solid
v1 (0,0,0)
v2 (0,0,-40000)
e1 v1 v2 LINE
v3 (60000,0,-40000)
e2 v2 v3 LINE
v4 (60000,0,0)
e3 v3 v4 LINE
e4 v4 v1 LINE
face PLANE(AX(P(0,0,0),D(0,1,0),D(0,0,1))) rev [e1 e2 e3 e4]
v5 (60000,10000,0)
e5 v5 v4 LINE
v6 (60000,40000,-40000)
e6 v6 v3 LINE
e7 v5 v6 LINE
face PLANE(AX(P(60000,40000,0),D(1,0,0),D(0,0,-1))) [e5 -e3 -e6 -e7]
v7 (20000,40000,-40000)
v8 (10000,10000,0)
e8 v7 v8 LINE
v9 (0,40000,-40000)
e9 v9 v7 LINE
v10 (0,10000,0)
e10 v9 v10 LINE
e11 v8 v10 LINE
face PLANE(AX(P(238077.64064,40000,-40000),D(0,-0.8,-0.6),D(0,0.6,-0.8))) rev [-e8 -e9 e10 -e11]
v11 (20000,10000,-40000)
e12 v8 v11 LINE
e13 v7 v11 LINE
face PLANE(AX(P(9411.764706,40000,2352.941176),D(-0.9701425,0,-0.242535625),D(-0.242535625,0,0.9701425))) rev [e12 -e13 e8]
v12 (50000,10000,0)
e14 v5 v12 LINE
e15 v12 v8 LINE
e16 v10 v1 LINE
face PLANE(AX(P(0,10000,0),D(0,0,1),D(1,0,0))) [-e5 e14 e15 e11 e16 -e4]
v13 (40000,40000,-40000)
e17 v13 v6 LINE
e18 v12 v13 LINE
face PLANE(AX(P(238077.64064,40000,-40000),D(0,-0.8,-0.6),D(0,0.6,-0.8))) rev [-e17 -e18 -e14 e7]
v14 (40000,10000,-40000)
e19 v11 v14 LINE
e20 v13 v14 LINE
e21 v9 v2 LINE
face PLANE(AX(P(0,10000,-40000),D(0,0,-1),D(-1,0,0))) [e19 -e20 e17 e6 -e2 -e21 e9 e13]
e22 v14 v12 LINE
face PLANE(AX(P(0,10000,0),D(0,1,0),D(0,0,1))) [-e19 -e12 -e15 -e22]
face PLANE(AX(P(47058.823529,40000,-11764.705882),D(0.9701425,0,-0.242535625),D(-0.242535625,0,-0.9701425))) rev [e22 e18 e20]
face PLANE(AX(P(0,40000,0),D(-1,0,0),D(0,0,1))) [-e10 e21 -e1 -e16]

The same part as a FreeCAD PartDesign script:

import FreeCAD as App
import Part
import Sketcher
Q = App.Units.Quantity

doc = App.newDocument("Part")
params = doc.addObject("Spreadsheet::Sheet", "Params")
for row, (alias, value) in enumerate([
    ("sketch1_width", "40000 mm"),
    ("sketch1_width2", "20000 mm"),
    ("pad1_length", "10000 mm"),
    ("sketch2_width", "10000 mm"),
    ("sketch2_width2", "20000 mm"),
    ("sketch2_height", "40000 mm"),
    ("pad2_length", "40000 mm"),
], start=1):
    params.set(f"A{row}", alias)
    params.set(f"B{row}", "=" + value)
    params.setAlias(f"B{row}", alias)

body = doc.addObject("PartDesign::Body", "Body")

# Sketch on XZ plane
sketch1 = body.newObject("Sketcher::SketchObject", "Sketch")
sketch1.AttachmentSupport = (doc.getObject("XZ_Plane"), [""])
sketch1.MapMode = "FlatFace"
sketch1.addGeometry([
    Part.LineSegment(App.Vector(20000, -40000, 0), App.Vector(10000, 0, 0)),
    Part.LineSegment(App.Vector(10000, 0, 0), App.Vector(50000, 0, 0)),
    Part.LineSegment(App.Vector(50000, 0, 0), App.Vector(40000, -40000, 0)),
    Part.LineSegment(App.Vector(40000, -40000, 0), App.Vector(20000, -40000, 0)),
], False)
sketch1.addConstraint([
    Sketcher.Constraint("Coincident", 0, 2, 1, 1),
    Sketcher.Constraint("Coincident", 1, 2, 2, 1),
    Sketcher.Constraint("Coincident", 2, 2, 3, 1),
    Sketcher.Constraint("Coincident", 3, 2, 0, 1),
    Sketcher.Constraint("Horizontal", 1),
    Sketcher.Constraint("Horizontal", 3),
    Sketcher.Constraint("PointOnObject", 0, 2, -1),
    Sketcher.Constraint("Equal", 0, 2),
    Sketcher.Constraint("DistanceX", 1, 1, 1, 2, Q("40000 mm")),
    Sketcher.Constraint("DistanceX", 3, 2, 3, 1, Q("20000 mm")),
    Sketcher.Constraint("DistanceX", -1, 1, 0, 2, Q("10000 mm")),
    Sketcher.Constraint("DistanceY", 2, 2, -1, 1, Q("40000 mm")),
])
sketch1.setExpression("Constraints[8]", "Params.sketch1_width")
sketch1.setExpression("Constraints[9]", "Params.sketch1_width2")
pad1 = body.newObject("PartDesign::Pad", "Pad")
pad1.Profile = sketch1
pad1.setExpression("Length", "Params.pad1_length")
pad1.Reversed = True

# Sketch on XZ plane
sketch2 = body.newObject("Sketcher::SketchObject", "Sketch001")
sketch2.AttachmentSupport = (doc.getObject("XZ_Plane"), [""])
sketch2.MapMode = "FlatFace"
sketch2.addGeometry([
    Part.LineSegment(App.Vector(40000, -40000, 0), App.Vector(50000, 0, 0)),  # 0
    Part.LineSegment(App.Vector(50000, 0, 0), App.Vector(60000, 0, 0)),  # 1
    Part.LineSegment(App.Vector(60000, 0, 0), App.Vector(60000, -40000, 0)),  # 2
    Part.LineSegment(App.Vector(60000, -40000, 0), App.Vector(40000, -40000, 0)),  # 3
    Part.LineSegment(App.Vector(0, -40000, 0), App.Vector(0, 0, 0)),  # 4
    Part.LineSegment(App.Vector(0, 0, 0), App.Vector(10000, 0, 0)),  # 5
    Part.LineSegment(App.Vector(10000, 0, 0), App.Vector(20000, -40000, 0)),  # 6
    Part.LineSegment(App.Vector(20000, -40000, 0), App.Vector(0, -40000, 0)),  # 7
], False)
sketch2.addConstraint([
    Sketcher.Constraint("Coincident", 0, 2, 1, 1),
    Sketcher.Constraint("Coincident", 1, 2, 2, 1),
    Sketcher.Constraint("Coincident", 2, 2, 3, 1),
    Sketcher.Constraint("Coincident", 3, 2, 0, 1),
    Sketcher.Constraint("Coincident", 4, 2, 5, 1),
    Sketcher.Constraint("Coincident", 5, 2, 6, 1),
    Sketcher.Constraint("Coincident", 6, 2, 7, 1),
    Sketcher.Constraint("Coincident", 7, 2, 4, 1),
    Sketcher.Constraint("Horizontal", 1),
    Sketcher.Constraint("Vertical", 2),
    Sketcher.Constraint("Horizontal", 3),
    Sketcher.Constraint("Vertical", 4),
    Sketcher.Constraint("Horizontal", 5),
    Sketcher.Constraint("Horizontal", 7),
    Sketcher.Constraint("Coincident", 4, 2, -1, 1),
    Sketcher.Constraint("PointOnObject", 0, 2, -1),
    Sketcher.Constraint("Horizontal", 3, 2, 6, 2),
    Sketcher.Constraint("Equal", 1, 5),
    Sketcher.Constraint("Equal", 3, 7),
    Sketcher.Constraint("DistanceX", 1, 1, 1, 2, Q("10000 mm")),
    Sketcher.Constraint("DistanceX", 3, 2, 3, 1, Q("20000 mm")),
    Sketcher.Constraint("DistanceY", 2, 2, 2, 1, Q("40000 mm")),
    Sketcher.Constraint("DistanceX", -1, 1, 0, 2, Q("50000 mm")),
])
sketch2.setExpression("Constraints[19]", "Params.sketch2_width")
sketch2.setExpression("Constraints[20]", "Params.sketch2_width2")
sketch2.setExpression("Constraints[21]", "Params.sketch2_height")
pad2 = body.newObject("PartDesign::Pad", "Pad001")
pad2.Profile = sketch2
pad2.setExpression("Length", "Params.pad2_length")
pad2.Reversed = True

# Sketch on YZ plane
sketch3 = body.newObject("Sketcher::SketchObject", "Sketch002")
sketch3.AttachmentSupport = (doc.getObject("YZ_Plane"), [""])
sketch3.MapMode = "FlatFace"
sketch3.AttachmentOffset = App.Placement(App.Vector(0, 0, 60000), App.Rotation())
sketch3.addGeometry([
    Part.LineSegment(App.Vector(-57888, 90518, 0), App.Vector(107888, -130518, 0)),
    Part.LineSegment(App.Vector(107888, -130518, 0), App.Vector(288924, 5259, 0)),
    Part.LineSegment(App.Vector(288924, 5259, 0), App.Vector(123147, 226294, 0)),
    Part.LineSegment(App.Vector(123147, 226294, 0), App.Vector(-57888, 90518, 0)),
], False)
sketch3.addConstraint([
    Sketcher.Constraint("Coincident", 0, 2, 1, 1),
    Sketcher.Constraint("Coincident", 1, 2, 2, 1),
    Sketcher.Constraint("Coincident", 2, 2, 3, 1),
    Sketcher.Constraint("Coincident", 3, 2, 0, 1),
    Sketcher.Constraint("Perpendicular", 0, 1),
    Sketcher.Constraint("Perpendicular", 1, 2),
    Sketcher.Constraint("Perpendicular", 2, 3),
    Sketcher.Constraint("Distance", 0, Q("276294.16998 mm")),
    Sketcher.Constraint("Distance", 1, Q("226294.16998 mm")),
    Sketcher.Constraint("DistanceY", 0, 2, -1, 1, Q("130517.667992 mm")),
    Sketcher.Constraint("DistanceX", -1, 1, 2, 2, Q("123147.08499 mm")),
    Sketcher.Constraint("DistanceY", -1, 1, 2, 2, Q("226294.16998 mm")),
])
pocket1 = body.newObject("PartDesign::Pocket", "Pocket")
pocket1.Profile = sketch3
pocket1.Type = "ThroughAll"
pocket1.Midplane = True

doc.recompute()
